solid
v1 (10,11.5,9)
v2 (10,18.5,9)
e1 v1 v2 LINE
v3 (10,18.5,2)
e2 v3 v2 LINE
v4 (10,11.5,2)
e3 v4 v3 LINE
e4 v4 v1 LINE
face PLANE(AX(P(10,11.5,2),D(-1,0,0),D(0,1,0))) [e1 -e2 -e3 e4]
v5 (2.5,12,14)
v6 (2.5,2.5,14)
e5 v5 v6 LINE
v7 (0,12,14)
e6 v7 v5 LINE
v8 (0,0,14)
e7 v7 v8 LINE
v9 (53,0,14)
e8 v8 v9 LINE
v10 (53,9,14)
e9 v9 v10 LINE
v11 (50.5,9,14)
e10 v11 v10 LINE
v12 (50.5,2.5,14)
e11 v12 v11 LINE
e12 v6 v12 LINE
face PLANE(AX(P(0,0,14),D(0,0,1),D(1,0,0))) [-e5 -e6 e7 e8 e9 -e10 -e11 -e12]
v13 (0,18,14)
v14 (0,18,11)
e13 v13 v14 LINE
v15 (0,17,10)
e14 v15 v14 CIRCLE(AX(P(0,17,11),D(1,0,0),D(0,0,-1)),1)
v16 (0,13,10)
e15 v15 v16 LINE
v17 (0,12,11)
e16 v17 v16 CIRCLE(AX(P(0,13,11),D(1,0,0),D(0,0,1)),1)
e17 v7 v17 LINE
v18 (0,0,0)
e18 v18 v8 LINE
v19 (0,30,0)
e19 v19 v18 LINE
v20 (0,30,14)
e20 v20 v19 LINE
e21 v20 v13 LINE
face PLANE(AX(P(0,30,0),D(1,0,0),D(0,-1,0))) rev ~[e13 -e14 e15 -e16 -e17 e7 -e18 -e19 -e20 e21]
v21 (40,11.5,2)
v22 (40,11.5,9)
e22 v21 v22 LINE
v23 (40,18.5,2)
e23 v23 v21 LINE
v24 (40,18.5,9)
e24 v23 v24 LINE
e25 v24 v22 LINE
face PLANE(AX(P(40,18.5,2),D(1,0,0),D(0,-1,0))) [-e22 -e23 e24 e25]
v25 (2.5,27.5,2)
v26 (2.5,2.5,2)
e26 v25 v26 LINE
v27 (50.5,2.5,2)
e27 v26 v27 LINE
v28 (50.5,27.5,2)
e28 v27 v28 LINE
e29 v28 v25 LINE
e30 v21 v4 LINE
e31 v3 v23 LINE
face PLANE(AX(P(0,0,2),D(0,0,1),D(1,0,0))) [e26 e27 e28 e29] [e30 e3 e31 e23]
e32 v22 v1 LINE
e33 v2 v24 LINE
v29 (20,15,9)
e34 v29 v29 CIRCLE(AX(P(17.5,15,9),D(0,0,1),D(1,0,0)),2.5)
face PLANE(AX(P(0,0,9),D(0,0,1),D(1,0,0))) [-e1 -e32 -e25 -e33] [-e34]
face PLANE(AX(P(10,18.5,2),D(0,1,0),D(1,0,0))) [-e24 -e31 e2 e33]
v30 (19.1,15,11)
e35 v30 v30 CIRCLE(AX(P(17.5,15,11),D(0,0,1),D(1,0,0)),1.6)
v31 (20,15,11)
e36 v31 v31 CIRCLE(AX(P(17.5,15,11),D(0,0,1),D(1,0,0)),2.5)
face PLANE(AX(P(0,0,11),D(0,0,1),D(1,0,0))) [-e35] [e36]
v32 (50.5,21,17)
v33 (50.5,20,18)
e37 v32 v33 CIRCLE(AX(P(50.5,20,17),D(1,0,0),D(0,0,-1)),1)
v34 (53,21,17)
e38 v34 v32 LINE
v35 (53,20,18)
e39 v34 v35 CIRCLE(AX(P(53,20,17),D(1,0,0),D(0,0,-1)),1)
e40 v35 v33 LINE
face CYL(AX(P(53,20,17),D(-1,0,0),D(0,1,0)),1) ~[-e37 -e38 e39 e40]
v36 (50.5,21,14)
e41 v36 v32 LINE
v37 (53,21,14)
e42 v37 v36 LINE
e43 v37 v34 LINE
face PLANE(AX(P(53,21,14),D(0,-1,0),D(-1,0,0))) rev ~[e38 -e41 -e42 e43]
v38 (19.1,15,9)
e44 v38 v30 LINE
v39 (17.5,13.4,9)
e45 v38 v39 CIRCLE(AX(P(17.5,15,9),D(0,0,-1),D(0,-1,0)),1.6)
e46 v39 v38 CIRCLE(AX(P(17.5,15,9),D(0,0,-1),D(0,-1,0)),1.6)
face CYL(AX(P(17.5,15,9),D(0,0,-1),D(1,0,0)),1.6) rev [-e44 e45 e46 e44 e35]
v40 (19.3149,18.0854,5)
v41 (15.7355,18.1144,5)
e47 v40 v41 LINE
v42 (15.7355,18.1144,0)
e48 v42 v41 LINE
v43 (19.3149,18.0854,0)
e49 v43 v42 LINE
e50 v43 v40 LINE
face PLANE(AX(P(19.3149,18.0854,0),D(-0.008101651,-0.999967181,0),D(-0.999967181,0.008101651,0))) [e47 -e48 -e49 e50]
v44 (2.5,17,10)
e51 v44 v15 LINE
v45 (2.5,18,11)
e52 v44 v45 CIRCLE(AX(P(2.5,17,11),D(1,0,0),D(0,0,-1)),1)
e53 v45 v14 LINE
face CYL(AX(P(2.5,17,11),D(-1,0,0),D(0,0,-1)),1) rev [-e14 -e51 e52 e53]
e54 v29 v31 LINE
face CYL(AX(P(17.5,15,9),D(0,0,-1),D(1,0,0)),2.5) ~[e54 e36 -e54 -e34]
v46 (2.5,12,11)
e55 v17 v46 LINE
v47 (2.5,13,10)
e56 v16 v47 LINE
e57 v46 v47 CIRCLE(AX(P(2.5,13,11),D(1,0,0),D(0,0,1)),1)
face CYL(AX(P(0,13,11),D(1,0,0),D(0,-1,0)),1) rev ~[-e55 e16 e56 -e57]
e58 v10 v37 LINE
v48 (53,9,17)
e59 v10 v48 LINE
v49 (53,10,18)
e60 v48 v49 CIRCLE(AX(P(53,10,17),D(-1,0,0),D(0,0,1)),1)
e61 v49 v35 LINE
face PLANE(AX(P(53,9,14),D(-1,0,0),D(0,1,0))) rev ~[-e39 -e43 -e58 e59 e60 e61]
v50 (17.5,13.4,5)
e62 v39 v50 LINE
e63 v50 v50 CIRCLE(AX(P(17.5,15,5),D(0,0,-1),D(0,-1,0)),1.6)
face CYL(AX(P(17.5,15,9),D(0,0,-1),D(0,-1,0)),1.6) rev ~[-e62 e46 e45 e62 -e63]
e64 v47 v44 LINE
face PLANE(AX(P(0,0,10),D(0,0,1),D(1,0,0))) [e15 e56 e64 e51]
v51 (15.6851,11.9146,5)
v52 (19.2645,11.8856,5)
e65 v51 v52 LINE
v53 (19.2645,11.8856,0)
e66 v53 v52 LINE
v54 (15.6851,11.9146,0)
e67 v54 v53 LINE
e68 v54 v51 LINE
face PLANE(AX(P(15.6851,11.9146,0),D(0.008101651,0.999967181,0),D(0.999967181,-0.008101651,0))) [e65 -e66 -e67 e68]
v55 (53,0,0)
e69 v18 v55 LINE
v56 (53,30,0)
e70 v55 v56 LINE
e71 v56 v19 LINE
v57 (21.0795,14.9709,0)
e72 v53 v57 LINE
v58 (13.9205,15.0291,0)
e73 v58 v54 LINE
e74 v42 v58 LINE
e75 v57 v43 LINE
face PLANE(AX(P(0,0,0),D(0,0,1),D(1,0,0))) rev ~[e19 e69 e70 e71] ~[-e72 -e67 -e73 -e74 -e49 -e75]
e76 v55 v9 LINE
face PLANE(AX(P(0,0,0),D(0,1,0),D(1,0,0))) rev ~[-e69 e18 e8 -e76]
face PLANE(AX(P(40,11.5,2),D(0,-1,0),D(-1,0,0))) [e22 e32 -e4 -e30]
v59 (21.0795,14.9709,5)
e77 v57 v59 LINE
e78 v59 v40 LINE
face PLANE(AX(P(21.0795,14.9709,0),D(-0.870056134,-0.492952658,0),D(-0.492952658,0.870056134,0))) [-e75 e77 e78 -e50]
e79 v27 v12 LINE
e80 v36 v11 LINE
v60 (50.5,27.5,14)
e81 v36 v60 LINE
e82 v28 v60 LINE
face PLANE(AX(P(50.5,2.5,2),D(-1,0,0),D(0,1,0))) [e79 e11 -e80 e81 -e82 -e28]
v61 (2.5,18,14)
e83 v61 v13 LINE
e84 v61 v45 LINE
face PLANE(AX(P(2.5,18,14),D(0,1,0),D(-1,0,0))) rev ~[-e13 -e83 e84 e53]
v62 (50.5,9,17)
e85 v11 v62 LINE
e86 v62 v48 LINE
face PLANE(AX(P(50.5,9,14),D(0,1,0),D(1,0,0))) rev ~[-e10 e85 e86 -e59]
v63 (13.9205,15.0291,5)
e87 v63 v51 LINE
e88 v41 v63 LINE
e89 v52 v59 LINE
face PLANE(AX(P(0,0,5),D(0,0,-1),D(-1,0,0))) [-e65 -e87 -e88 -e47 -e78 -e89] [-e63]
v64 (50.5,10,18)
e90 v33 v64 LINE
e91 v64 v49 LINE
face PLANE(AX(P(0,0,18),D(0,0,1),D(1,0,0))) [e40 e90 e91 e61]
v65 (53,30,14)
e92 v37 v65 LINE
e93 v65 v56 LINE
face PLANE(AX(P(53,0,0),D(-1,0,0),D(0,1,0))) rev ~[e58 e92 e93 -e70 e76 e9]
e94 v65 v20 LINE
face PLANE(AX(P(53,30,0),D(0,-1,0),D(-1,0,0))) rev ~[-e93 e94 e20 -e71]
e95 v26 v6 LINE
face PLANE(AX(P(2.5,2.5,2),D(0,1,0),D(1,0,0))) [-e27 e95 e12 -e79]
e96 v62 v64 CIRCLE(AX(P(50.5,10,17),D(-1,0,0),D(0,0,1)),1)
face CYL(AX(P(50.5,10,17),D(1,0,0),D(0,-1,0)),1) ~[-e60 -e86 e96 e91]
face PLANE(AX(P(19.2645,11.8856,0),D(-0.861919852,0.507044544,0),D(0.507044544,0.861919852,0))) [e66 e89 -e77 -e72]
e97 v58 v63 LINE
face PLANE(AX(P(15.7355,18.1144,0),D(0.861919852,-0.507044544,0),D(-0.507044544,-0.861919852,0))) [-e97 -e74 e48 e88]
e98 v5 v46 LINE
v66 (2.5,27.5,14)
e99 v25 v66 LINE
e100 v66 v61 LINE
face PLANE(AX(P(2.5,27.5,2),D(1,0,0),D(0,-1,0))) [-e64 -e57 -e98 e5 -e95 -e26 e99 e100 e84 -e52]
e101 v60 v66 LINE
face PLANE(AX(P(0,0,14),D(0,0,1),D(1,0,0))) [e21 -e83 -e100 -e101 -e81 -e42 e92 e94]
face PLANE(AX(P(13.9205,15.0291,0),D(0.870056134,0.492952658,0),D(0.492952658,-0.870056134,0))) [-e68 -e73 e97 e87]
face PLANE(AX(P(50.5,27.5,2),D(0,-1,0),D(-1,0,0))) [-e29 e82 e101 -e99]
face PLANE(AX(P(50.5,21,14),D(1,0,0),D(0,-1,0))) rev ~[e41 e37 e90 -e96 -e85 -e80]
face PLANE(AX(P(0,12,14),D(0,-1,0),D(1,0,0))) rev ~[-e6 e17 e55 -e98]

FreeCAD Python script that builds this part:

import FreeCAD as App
import Part
import Sketcher

V = App.Vector
Q = App.Units.Quantity


def edges_at(feature, points):
    """Names of the edges that pass closest to the given points."""
    edges = feature.Shape.Edges
    near = lambda p: min(range(len(edges)), key=lambda i: edges[i].distToShape(Part.Vertex(*p))[0])
    return sorted({f"Edge{near(p) + 1}" for p in points})

doc = App.newDocument("Part")
body = doc.addObject("PartDesign::Body", "Body")

# Sketch on XY plane
sketch1 = body.newObject("Sketcher::SketchObject", "Sketch")
sketch1.AttachmentSupport = (doc.getObject("XY_Plane"), [""])
sketch1.MapMode = "FlatFace"
sketch1.addGeometry(Part.LineSegment(V(0, 30, 0), V(0, 0, 0)), False)
sketch1.addGeometry(Part.LineSegment(V(0, 0, 0), V(53, 0, 0)), False)
sketch1.addGeometry(Part.LineSegment(V(53, 0, 0), V(53, 30, 0)), False)
sketch1.addGeometry(Part.LineSegment(V(53, 30, 0), V(0, 30, 0)), False)
sketch1.addConstraint(Sketcher.Constraint("Coincident", 0, 2, 1, 1))
sketch1.addConstraint(Sketcher.Constraint("Coincident", 1, 2, 2, 1))
sketch1.addConstraint(Sketcher.Constraint("Coincident", 2, 2, 3, 1))
sketch1.addConstraint(Sketcher.Constraint("Coincident", 3, 2, 0, 1))
sketch1.addConstraint(Sketcher.Constraint("Vertical", 0))
sketch1.addConstraint(Sketcher.Constraint("Horizontal", 1))
sketch1.addConstraint(Sketcher.Constraint("Vertical", 2))
sketch1.addConstraint(Sketcher.Constraint("Horizontal", 3))
sketch1.addConstraint(Sketcher.Constraint("Coincident", 0, 2, -1, 1))
sketch1.addConstraint(Sketcher.Constraint("DistanceX", 1, 1, 1, 2, Q("53 mm")))
sketch1.addConstraint(Sketcher.Constraint("DistanceY", 0, 2, 0, 1, Q("30 mm")))
pad1 = body.newObject("PartDesign::Pad", "Pad")
pad1.Profile = sketch1
pad1.Length = 2

# Sketch on XY plane
sketch2 = body.newObject("Sketcher::SketchObject", "Sketch001")
sketch2.AttachmentSupport = (doc.getObject("XY_Plane"), [""])
sketch2.MapMode = "FlatFace"
sketch2.AttachmentOffset = App.Placement(V(0, 0, 2), App.Rotation())
sketch2.addGeometry(Part.LineSegment(V(0, 30, 0), V(0, 0, 0)), False)
sketch2.addGeometry(Part.LineSegment(V(0, 0, 0), V(53, 0, 0)), False)
sketch2.addGeometry(Part.LineSegment(V(53, 0, 0), V(53, 30, 0)), False)
sketch2.addGeometry(Part.LineSegment(V(53, 30, 0), V(0, 30, 0)), False)
sketch2.addGeometry(Part.LineSegment(V(50.5, 2.5, 0), V(2.5, 2.5, 0)), False)
sketch2.addGeometry(Part.LineSegment(V(2.5, 2.5, 0), V(2.5, 27.5, 0)), False)
sketch2.addGeometry(Part.LineSegment(V(2.5, 27.5, 0), V(50.5, 27.5, 0)), False)
sketch2.addGeometry(Part.LineSegment(V(50.5, 27.5, 0), V(50.5, 2.5, 0)), False)
sketch2.addConstraint(Sketcher.Constraint("Coincident", 0, 2, 1, 1))
sketch2.addConstraint(Sketcher.Constraint("Coincident", 1, 2, 2, 1))
sketch2.addConstraint(Sketcher.Constraint("Coincident", 2, 2, 3, 1))
sketch2.addConstraint(Sketcher.Constraint("Coincident", 3, 2, 0, 1))
sketch2.addConstraint(Sketcher.Constraint("Coincident", 4, 2, 5, 1))
sketch2.addConstraint(Sketcher.Constraint("Coincident", 5, 2, 6, 1))
sketch2.addConstraint(Sketcher.Constraint("Coincident", 6, 2, 7, 1))
sketch2.addConstraint(Sketcher.Constraint("Coincident", 7, 2, 4, 1))
sketch2.addConstraint(Sketcher.Constraint("Vertical", 0))
sketch2.addConstraint(Sketcher.Constraint("Horizontal", 1))
sketch2.addConstraint(Sketcher.Constraint("Vertical", 2))
sketch2.addConstraint(Sketcher.Constraint("Horizontal", 3))
sketch2.addConstraint(Sketcher.Constraint("Horizontal", 4))
sketch2.addConstraint(Sketcher.Constraint("Vertical", 5))
sketch2.addConstraint(Sketcher.Constraint("Horizontal", 6))
sketch2.addConstraint(Sketcher.Constraint("Vertical", 7))
sketch2.addConstraint(Sketcher.Constraint("Coincident", 0, 2, -1, 1))
sketch2.addConstraint(Sketcher.Constraint("DistanceX", 4, 2, 4, 1, Q("48 mm")))
sketch2.addConstraint(Sketcher.Constraint("DistanceY", 5, 1, 5, 2, Q("25 mm")))
sketch2.addConstraint(Sketcher.Constraint("DistanceX", -1, 1, 4, 2, Q("2.5 mm")))
sketch2.addConstraint(Sketcher.Constraint("DistanceY", -1, 1, 4, 2, Q("2.5 mm")))
sketch2.addConstraint(Sketcher.Constraint("DistanceY", 5, 2, 3, 2, Q("2.5 mm")))
sketch2.addConstraint(Sketcher.Constraint("DistanceX", 6, 2, 2, 2, Q("2.5 mm")))
pad2 = body.newObject("PartDesign::Pad", "Pad001")
pad2.Profile = sketch2
pad2.Length = 12

# Sketch on XY plane
sketch3 = body.newObject("Sketcher::SketchObject", "Sketch002")
sketch3.AttachmentSupport = (doc.getObject("XY_Plane"), [""])
sketch3.MapMode = "FlatFace"
sketch3.AttachmentOffset = App.Placement(V(0, 0, 2), App.Rotation())
sketch3.addGeometry(Part.LineSegment(V(40, 18.5, 0), V(10, 18.5, 0)), False)
sketch3.addGeometry(Part.LineSegment(V(10, 18.5, 0), V(10, 11.5, 0)), False)
sketch3.addGeometry(Part.LineSegment(V(10, 11.5, 0), V(40, 11.5, 0)), False)
sketch3.addGeometry(Part.LineSegment(V(40, 11.5, 0), V(40, 18.5, 0)), False)
sketch3.addConstraint(Sketcher.Constraint("Coincident", 0, 2, 1, 1))
sketch3.addConstraint(Sketcher.Constraint("Coincident", 1, 2, 2, 1))
sketch3.addConstraint(Sketcher.Constraint("Coincident", 2, 2, 3, 1))
sketch3.addConstraint(Sketcher.Constraint("Coincident", 3, 2, 0, 1))
sketch3.addConstraint(Sketcher.Constraint("Horizontal", 0))
sketch3.addConstraint(Sketcher.Constraint("Vertical", 1))
sketch3.addConstraint(Sketcher.Constraint("Horizontal", 2))
sketch3.addConstraint(Sketcher.Constraint("Vertical", 3))
sketch3.addConstraint(Sketcher.Constraint("DistanceX", 0, 2, 0, 1, Q("30 mm")))
sketch3.addConstraint(Sketcher.Constraint("DistanceY", 1, 2, 1, 1, Q("7 mm")))
sketch3.addConstraint(Sketcher.Constraint("DistanceX", -1, 1, 0, 2, Q("10 mm")))
sketch3.addConstraint(Sketcher.Constraint("DistanceY", -1, 1, 0, 2, Q("18.5 mm")))
pad3 = body.newObject("PartDesign::Pad", "Pad002")
pad3.Profile = sketch3
pad3.Length = 7

# Sketch on XY plane
sketch4 = body.newObject("Sketcher::SketchObject", "Sketch003")
sketch4.AttachmentSupport = (doc.getObject("XY_Plane"), [""])
sketch4.MapMode = "FlatFace"
sketch4.AttachmentOffset = App.Placement(V(0, 0, 9), App.Rotation())
sketch4.addGeometry(Part.Circle(V(17.5, 15, 0), V(0, 0, 1), 1.6), False)
sketch4.addConstraint(Sketcher.Constraint("Diameter", 0, Q("3.2 mm")))
sketch4.addConstraint(Sketcher.Constraint("DistanceY", -1, 1, 0, 3, Q("15 mm")))
sketch4.addConstraint(Sketcher.Constraint("DistanceX", -1, 1, 0, 3, Q("17.5 mm")))
doc.recompute()
hole = body.newObject("PartDesign::Hole", "Hole")
hole.Profile = sketch4
hole.ThreadType = "None"
hole.Diameter = 3.2
hole.DepthType = "ThroughAll"

# Sketch on XY plane
sketch5 = body.newObject("Sketcher::SketchObject", "Sketch004")
sketch5.AttachmentSupport = (doc.getObject("XY_Plane"), [""])
sketch5.MapMode = "FlatFace"
sketch5.addGeometry(Part.LineSegment(V(15.7355, 18.1144, 0), V(19.3149, 18.0854, 0)), False)
sketch5.addGeometry(Part.LineSegment(V(19.3149, 18.0854, 0), V(21.0795, 14.9709, 0)), False)
sketch5.addGeometry(Part.LineSegment(V(21.0795, 14.9709, 0), V(19.2645, 11.8856, 0)), False)
sketch5.addGeometry(Part.LineSegment(V(19.2645, 11.8856, 0), V(15.6851, 11.9146, 0)), False)
sketch5.addGeometry(Part.LineSegment(V(15.6851, 11.9146, 0), V(13.9205, 15.0291, 0)), False)
sketch5.addGeometry(Part.LineSegment(V(13.9205, 15.0291, 0), V(15.7355, 18.1144, 0)), False)
sketch5.addConstraint(Sketcher.Constraint("Coincident", 0, 2, 1, 1))
sketch5.addConstraint(Sketcher.Constraint("Coincident", 1, 2, 2, 1))
sketch5.addConstraint(Sketcher.Constraint("Coincident", 2, 2, 3, 1))
sketch5.addConstraint(Sketcher.Constraint("Coincident", 3, 2, 4, 1))
sketch5.addConstraint(Sketcher.Constraint("Coincident", 4, 2, 5, 1))
sketch5.addConstraint(Sketcher.Constraint("Coincident", 5, 2, 0, 1))
sketch5.addConstraint(Sketcher.Constraint("Parallel", 0, 3))
sketch5.addConstraint(Sketcher.Constraint("Parallel", 1, 4))
sketch5.addConstraint(Sketcher.Constraint("Parallel", 2, 5))
sketch5.addConstraint(Sketcher.Constraint("Equal", 0, 1))
sketch5.addConstraint(Sketcher.Constraint("Equal", 1, 2))
sketch5.addConstraint(Sketcher.Constraint("Equal", 2, 3))
sketch5.addConstraint(Sketcher.Constraint("DistanceY", 2, 2, 0, 2, Q("6.1998 mm")))
sketch5.addConstraint(Sketcher.Constraint("DistanceX", -1, 1, 0, 2, Q("19.315 mm")))
sketch5.addConstraint(Sketcher.Constraint("DistanceY", -1, 1, 1, 2, Q("14.971 mm")))
sketch5.addConstraint(Sketcher.Constraint("DistanceX", -1, 1, 3, 2, Q("15.685 mm")))
sketch5.addConstraint(Sketcher.Constraint("DistanceY", -1, 1, 4, 2, Q("15.029 mm")))
sketch5.addConstraint(Sketcher.Constraint("DistanceX", 2, 2, 1, 2, Q("1.815 mm")))
pocket1 = body.newObject("PartDesign::Pocket", "Pocket")
pocket1.Profile = sketch5
pocket1.Length = 5
pocket1.Reversed = True

# Sketch on XY plane
sketch6 = body.newObject("Sketcher::SketchObject", "Sketch005")
sketch6.AttachmentSupport = (doc.getObject("XY_Plane"), [""])
sketch6.MapMode = "FlatFace"
sketch6.AttachmentOffset = App.Placement(V(0, 0, 9), App.Rotation())
sketch6.addGeometry(Part.Circle(V(17.5, 15, 0), V(0, 0, 1), 2.5), False)
sketch6.addGeometry(Part.Circle(V(17.5, 15, 0), V(0, 0, 1), 1.6), False)
sketch6.addConstraint(Sketcher.Constraint("Coincident", 1, 3, 0, 3))
sketch6.addConstraint(Sketcher.Constraint("Diameter", 0, Q("5 mm")))
sketch6.addConstraint(Sketcher.Constraint("DistanceY", -1, 1, 0, 3, Q("15 mm")))
sketch6.addConstraint(Sketcher.Constraint("Diameter", 1, Q("3.2 mm")))
sketch6.addConstraint(Sketcher.Constraint("DistanceX", -1, 1, 0, 3, Q("17.5 mm")))
pad4 = body.newObject("PartDesign::Pad", "Pad003")
pad4.Profile = sketch6
pad4.Length = 2

# Sketch on XY plane
sketch7 = body.newObject("Sketcher::SketchObject", "Sketch006")
sketch7.AttachmentSupport = (doc.getObject("XY_Plane"), [""])
sketch7.MapMode = "FlatFace"
sketch7.AttachmentOffset = App.Placement(V(0, 0, 14), App.Rotation())
sketch7.addGeometry(Part.LineSegment(V(53, 21, 0), V(50.5, 21, 0)), False)
sketch7.addGeometry(Part.LineSegment(V(50.5, 21, 0), V(50.5, 9, 0)), False)
sketch7.addGeometry(Part.LineSegment(V(50.5, 9, 0), V(53, 9, 0)), False)
sketch7.addGeometry(Part.LineSegment(V(53, 9, 0), V(53, 21, 0)), False)
sketch7.addConstraint(Sketcher.Constraint("Coincident", 0, 2, 1, 1))
sketch7.addConstraint(Sketcher.Constraint("Coincident", 1, 2, 2, 1))
sketch7.addConstraint(Sketcher.Constraint("Coincident", 2, 2, 3, 1))
sketch7.addConstraint(Sketcher.Constraint("Coincident", 3, 2, 0, 1))
sketch7.addConstraint(Sketcher.Constraint("Horizontal", 0))
sketch7.addConstraint(Sketcher.Constraint("Vertical", 1))
sketch7.addConstraint(Sketcher.Constraint("Horizontal", 2))
sketch7.addConstraint(Sketcher.Constraint("Vertical", 3))
sketch7.addConstraint(Sketcher.Constraint("DistanceY", 1, 2, 1, 1, Q("12 mm")))
sketch7.addConstraint(Sketcher.Constraint("DistanceY", -1, 1, 1, 2, Q("9 mm")))
sketch7.addConstraint(Sketcher.Constraint("DistanceX", 0, 2, 0, 1, Q("2.5 mm")))
sketch7.addConstraint(Sketcher.Constraint("DistanceX", -1, 1, 2, 2, Q("53 mm")))
pad5 = body.newObject("PartDesign::Pad", "Pad004")
pad5.Profile = sketch7
pad5.Length = 4

# Sketch on XY plane
sketch8 = body.newObject("Sketcher::SketchObject", "Sketch007")
sketch8.AttachmentSupport = (doc.getObject("XY_Plane"), [""])
sketch8.MapMode = "FlatFace"
sketch8.AttachmentOffset = App.Placement(V(0, 0, 14), App.Rotation())
sketch8.addGeometry(Part.LineSegment(V(2.5, 18, 0), V(0, 18, 0)), False)
sketch8.addGeometry(Part.LineSegment(V(0, 18, 0), V(0, 12, 0)), False)
sketch8.addGeometry(Part.LineSegment(V(0, 12, 0), V(2.5, 12, 0)), False)
sketch8.addGeometry(Part.LineSegment(V(2.5, 12, 0), V(2.5, 18, 0)), False)
sketch8.addConstraint(Sketcher.Constraint("Coincident", 0, 2, 1, 1))
sketch8.addConstraint(Sketcher.Constraint("Coincident", 1, 2, 2, 1))
sketch8.addConstraint(Sketcher.Constraint("Coincident", 2, 2, 3, 1))
sketch8.addConstraint(Sketcher.Constraint("Coincident", 3, 2, 0, 1))
sketch8.addConstraint(Sketcher.Constraint("Horizontal", 0))
sketch8.addConstraint(Sketcher.Constraint("Vertical", 1))
sketch8.addConstraint(Sketcher.Constraint("Horizontal", 2))
sketch8.addConstraint(Sketcher.Constraint("Vertical", 3))
sketch8.addConstraint(Sketcher.Constraint("PointOnObject", 0, 2, -2))
sketch8.addConstraint(Sketcher.Constraint("DistanceY", 1, 2, 1, 1, Q("6 mm")))
sketch8.addConstraint(Sketcher.Constraint("DistanceY", -1, 1, 1, 2, Q("12 mm")))
sketch8.addConstraint(Sketcher.Constraint("DistanceX", 0, 2, 0, 1, Q("2.5 mm")))
pocket2 = body.newObject("PartDesign::Pocket", "Pocket001")
pocket2.Profile = sketch8
pocket2.Length = 4
doc.recompute()

fillet = body.newObject("PartDesign::Fillet", "Fillet")
fillet.Base = (pocket2, edges_at(pocket2, [
    (51.75, 21, 18),
    (51.75, 9, 18),
    (1.25, 18, 10),
    (1.25, 12, 10),
]))
fillet.Radius = 1

doc.recompute()
